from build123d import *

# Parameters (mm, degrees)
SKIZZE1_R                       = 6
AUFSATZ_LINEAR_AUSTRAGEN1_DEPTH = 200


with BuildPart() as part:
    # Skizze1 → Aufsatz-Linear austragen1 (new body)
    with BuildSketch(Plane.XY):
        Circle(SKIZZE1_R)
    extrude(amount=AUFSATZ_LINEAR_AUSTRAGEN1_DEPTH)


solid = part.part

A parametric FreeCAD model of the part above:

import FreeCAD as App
import Part
import Sketcher
from FreeCAD import Vector
Q = App.Units.Quantity

doc = App.newDocument("Part")
body = doc.addObject("PartDesign::Body", "Body")

# Sketch on XY plane
sketch1 = body.newObject("Sketcher::SketchObject", "Sketch")
sketch1.AttachmentSupport = (doc.getObject("XY_Plane"), [""])
sketch1.MapMode = "FlatFace"
sketch1.addGeometry(Part.Circle(Vector(0, 0, 0), Vector(0, 0, 1), 6), False)
sketch1.addConstraint([
    Sketcher.Constraint("Coincident", 0, 3, -1, 1),
    Sketcher.Constraint("Diameter", 0, Q("12 mm")),
])
pad1 = body.newObject("PartDesign::Pad", "Pad")
pad1.Profile = sketch1
pad1.Length = 200

doc.recompute()
